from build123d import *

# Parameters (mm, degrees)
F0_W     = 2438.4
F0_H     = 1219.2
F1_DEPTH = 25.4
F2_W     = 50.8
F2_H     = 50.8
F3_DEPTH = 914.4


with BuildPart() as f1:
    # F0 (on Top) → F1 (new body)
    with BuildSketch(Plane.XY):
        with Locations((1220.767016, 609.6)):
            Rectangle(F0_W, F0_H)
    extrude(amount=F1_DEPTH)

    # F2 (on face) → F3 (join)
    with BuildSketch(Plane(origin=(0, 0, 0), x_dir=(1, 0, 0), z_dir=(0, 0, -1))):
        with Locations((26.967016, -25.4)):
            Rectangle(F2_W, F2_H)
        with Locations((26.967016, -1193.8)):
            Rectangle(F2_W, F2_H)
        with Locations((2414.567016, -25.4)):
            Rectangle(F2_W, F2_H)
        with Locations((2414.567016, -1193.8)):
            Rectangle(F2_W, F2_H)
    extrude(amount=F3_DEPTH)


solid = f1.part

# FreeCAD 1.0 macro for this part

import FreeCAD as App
import Part
import Sketcher
Q = App.Units.Quantity


def add_polygon(sketch, points):
    """Adds a closed chain of lines whose ends are joined by coincident constraints."""
    first, n = sketch.GeometryCount, len(points)
    for a, b in zip(points, points[1:] + points[:1]):
        sketch.addGeometry(Part.LineSegment(App.Vector(*a, 0), App.Vector(*b, 0)), False)
    for i in range(n):
        sketch.addConstraint(Sketcher.Constraint("Coincident", first + i, 2, first + (i + 1) % n, 1))

doc = App.newDocument("Part")
body = doc.addObject("PartDesign::Body", "Body")

# Sketch on XY plane
sketch1 = body.newObject("Sketcher::SketchObject", "Sketch")
sketch1.AttachmentSupport = (doc.getObject("XY_Plane"), [""])
sketch1.MapMode = "FlatFace"
add_polygon(sketch1, [(2, 1219), (2, 0), (2440, 0), (2440, 1219)])  # lines 0-3
sketch1.addConstraint([
    Sketcher.Constraint("Vertical", 0),
    Sketcher.Constraint("Horizontal", 1),
    Sketcher.Constraint("Vertical", 2),
    Sketcher.Constraint("Horizontal", 3),
    Sketcher.Constraint("PointOnObject", 0, 2, -1),
    Sketcher.Constraint("DistanceX", 1, 1, 1, 2, Q("96 in")),
    Sketcher.Constraint("DistanceY", 0, 2, 0, 1, Q("48 in")),
    Sketcher.Constraint("DistanceX", -1, 1, 0, 2, 1.567016),
])
pad1 = body.newObject("PartDesign::Pad", "Pad")
pad1.Profile = sketch1
pad1.Length = Q("1 in")

# Sketch on XY plane
sketch2 = body.newObject("Sketcher::SketchObject", "Sketch001")
sketch2.AttachmentSupport = (doc.getObject("XY_Plane"), [""])
sketch2.MapMode = "FlatFace"
add_polygon(sketch2, [(2, 0), (2, 51), (52, 51), (52, 0)])  # lines 0-3
add_polygon(sketch2, [(2, 1168), (2, 1219), (52, 1219), (52, 1168)])  # lines 4-7
add_polygon(sketch2, [(2389, 0), (2389, 51), (2440, 51), (2440, 0)])  # lines 8-11
add_polygon(sketch2, [(2389, 1168), (2389, 1219), (2440, 1219), (2440, 1168)])  # lines 12-15
sketch2.addConstraint([
    Sketcher.Constraint("Vertical", 0),
    Sketcher.Constraint("Horizontal", 1),
    Sketcher.Constraint("Vertical", 2),
    Sketcher.Constraint("Horizontal", 3),
    Sketcher.Constraint("Vertical", 4),
    Sketcher.Constraint("Horizontal", 5),
    Sketcher.Constraint("Vertical", 6),
    Sketcher.Constraint("Horizontal", 7),
    Sketcher.Constraint("Vertical", 8),
    Sketcher.Constraint("Horizontal", 9),
    Sketcher.Constraint("Vertical", 10),
    Sketcher.Constraint("Horizontal", 11),
    Sketcher.Constraint("Vertical", 12),
    Sketcher.Constraint("Horizontal", 13),
    Sketcher.Constraint("Vertical", 14),
    Sketcher.Constraint("Horizontal", 15),
    Sketcher.Constraint("PointOnObject", 2, 2, -1),
    Sketcher.Constraint("PointOnObject", 10, 2, -1),
    Sketcher.Constraint("Horizontal", 1, 2, 8, 2),
    Sketcher.Constraint("Horizontal", 5, 2, 12, 2),
    Sketcher.Constraint("Horizontal", 7, 2, 14, 2),
    Sketcher.Constraint("Vertical", 3, 2, 4, 2),
    Sketcher.Constraint("Vertical", 2, 2, 5, 2),
    Sketcher.Constraint("Vertical", 11, 2, 12, 2),
    Sketcher.Constraint("Vertical", 10, 2, 13, 2),
    Sketcher.Constraint("Equal", 7, 9),
    Sketcher.Constraint("Equal", 15, 0),
    Sketcher.Constraint("Equal", 2, 4),
    Sketcher.Constraint("DistanceX", 1, 1, 1, 2, Q("2 in")),
    Sketcher.Constraint("DistanceY", -1, 1, 4, 2, Q("48 in")),
    Sketcher.Constraint("DistanceX", 1, 2, 8, 2, Q("92 in")),
    Sketcher.Constraint("DistanceX", -1, 1, 0, 2, 1.567016),
])
pad2 = body.newObject("PartDesign::Pad", "Pad001")
pad2.Profile = sketch2
pad2.Length = Q("36 in")
pad2.Reversed = True

doc.recompute()
